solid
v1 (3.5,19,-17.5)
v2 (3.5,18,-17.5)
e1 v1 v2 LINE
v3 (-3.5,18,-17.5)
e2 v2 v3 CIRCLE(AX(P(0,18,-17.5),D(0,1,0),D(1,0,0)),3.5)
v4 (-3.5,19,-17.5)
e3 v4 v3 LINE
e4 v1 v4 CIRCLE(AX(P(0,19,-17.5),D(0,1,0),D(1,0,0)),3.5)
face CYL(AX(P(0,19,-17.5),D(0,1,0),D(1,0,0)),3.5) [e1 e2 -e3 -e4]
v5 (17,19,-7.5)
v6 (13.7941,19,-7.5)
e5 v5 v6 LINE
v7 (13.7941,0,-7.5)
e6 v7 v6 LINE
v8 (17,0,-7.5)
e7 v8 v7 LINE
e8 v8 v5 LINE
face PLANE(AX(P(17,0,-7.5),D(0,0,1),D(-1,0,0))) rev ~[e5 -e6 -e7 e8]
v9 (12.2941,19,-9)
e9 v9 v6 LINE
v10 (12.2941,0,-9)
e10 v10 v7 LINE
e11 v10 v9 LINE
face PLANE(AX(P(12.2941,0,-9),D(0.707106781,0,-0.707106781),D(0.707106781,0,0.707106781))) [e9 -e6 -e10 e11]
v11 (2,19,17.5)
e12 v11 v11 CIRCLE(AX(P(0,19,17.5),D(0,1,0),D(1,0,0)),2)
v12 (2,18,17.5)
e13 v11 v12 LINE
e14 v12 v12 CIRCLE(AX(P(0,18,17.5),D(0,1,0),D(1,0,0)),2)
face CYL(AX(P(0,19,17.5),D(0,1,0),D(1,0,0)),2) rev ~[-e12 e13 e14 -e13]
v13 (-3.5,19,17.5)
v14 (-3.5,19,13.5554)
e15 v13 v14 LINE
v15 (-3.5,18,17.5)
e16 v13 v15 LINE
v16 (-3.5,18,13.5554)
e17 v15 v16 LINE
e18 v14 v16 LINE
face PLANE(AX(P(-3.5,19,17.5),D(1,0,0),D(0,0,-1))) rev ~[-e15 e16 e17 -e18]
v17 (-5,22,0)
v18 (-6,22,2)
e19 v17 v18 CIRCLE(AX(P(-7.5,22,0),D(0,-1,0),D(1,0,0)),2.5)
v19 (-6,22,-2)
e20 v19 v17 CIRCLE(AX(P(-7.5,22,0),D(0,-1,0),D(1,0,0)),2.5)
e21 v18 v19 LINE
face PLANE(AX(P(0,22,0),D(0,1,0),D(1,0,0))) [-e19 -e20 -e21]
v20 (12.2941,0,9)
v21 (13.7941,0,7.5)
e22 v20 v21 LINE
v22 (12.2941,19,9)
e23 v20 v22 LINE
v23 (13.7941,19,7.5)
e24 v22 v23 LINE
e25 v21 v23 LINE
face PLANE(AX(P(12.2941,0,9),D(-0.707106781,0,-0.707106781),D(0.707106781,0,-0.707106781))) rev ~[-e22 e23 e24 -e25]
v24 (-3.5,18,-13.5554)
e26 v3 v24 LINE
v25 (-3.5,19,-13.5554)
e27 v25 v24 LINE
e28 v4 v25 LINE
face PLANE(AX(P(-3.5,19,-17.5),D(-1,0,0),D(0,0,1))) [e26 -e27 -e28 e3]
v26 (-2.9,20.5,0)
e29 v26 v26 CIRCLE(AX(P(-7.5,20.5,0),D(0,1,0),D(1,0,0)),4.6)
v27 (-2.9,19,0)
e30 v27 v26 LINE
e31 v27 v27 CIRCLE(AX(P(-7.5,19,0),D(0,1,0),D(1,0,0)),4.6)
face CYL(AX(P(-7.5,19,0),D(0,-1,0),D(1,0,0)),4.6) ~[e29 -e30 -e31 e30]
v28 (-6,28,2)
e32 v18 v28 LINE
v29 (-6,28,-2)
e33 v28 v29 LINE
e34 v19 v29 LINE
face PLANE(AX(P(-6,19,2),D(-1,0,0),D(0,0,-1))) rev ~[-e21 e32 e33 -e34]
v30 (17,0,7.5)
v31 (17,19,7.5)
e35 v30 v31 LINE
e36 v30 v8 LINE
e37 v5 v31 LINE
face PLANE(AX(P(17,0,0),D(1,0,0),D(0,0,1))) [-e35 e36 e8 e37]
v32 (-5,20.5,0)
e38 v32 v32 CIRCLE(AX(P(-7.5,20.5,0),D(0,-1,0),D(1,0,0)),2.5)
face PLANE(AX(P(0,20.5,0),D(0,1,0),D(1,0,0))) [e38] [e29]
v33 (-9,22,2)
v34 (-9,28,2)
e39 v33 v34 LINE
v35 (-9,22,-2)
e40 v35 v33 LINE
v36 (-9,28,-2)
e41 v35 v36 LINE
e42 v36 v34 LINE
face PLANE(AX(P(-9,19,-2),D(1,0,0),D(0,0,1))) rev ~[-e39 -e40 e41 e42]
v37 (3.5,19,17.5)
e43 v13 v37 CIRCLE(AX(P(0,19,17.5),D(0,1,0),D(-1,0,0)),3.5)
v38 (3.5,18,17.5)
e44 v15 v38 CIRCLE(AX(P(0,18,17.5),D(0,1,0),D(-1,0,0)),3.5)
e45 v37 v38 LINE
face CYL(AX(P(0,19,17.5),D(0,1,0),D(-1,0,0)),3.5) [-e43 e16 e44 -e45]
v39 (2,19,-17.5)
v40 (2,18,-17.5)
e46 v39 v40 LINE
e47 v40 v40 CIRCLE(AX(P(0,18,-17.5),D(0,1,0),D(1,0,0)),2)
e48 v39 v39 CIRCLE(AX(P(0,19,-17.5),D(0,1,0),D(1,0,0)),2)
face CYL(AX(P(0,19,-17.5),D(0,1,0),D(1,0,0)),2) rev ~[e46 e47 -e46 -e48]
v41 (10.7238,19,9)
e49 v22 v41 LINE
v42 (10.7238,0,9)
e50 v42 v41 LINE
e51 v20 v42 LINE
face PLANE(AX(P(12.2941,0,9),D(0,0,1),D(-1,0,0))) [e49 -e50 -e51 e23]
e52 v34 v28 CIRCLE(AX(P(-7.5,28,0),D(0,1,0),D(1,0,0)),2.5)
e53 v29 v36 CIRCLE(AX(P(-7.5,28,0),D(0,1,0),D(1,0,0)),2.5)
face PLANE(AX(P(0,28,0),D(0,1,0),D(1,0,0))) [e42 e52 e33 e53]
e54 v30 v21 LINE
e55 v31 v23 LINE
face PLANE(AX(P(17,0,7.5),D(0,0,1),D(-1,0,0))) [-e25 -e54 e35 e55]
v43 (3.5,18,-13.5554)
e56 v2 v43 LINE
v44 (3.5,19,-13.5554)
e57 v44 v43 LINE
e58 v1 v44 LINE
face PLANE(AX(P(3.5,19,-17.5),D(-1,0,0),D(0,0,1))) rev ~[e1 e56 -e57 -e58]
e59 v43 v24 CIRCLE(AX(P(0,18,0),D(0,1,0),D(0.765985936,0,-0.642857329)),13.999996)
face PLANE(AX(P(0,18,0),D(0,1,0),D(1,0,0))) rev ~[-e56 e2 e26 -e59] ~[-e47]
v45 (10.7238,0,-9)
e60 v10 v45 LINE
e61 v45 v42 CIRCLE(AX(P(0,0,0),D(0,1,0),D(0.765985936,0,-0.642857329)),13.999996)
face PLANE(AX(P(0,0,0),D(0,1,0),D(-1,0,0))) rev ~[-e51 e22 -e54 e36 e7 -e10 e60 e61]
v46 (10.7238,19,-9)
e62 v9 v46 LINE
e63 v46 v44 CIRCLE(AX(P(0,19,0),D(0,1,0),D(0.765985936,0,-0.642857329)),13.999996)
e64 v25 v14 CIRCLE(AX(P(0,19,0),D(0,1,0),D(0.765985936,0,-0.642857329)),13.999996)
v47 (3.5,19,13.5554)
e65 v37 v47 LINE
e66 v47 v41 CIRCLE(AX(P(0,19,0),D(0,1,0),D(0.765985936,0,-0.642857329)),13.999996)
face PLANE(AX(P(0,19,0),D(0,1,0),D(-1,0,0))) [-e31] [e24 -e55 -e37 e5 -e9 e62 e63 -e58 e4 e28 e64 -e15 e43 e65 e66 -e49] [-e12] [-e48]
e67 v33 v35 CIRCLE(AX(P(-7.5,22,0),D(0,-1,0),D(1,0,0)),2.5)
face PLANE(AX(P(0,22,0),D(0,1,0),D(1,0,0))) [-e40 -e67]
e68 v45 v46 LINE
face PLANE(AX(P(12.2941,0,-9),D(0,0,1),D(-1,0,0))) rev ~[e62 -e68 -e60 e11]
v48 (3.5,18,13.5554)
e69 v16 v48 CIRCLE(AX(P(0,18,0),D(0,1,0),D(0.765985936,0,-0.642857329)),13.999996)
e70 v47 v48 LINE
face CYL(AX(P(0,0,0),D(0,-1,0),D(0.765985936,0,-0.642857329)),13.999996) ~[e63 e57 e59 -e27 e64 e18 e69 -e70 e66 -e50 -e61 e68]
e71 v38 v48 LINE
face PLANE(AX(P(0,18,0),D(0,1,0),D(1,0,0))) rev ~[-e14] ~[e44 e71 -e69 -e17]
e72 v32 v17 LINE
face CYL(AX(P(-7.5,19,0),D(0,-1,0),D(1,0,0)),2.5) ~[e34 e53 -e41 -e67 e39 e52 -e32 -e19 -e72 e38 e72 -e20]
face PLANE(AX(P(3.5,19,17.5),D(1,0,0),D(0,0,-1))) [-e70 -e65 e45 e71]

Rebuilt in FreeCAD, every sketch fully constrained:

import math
import FreeCAD as App
import Part
import Sketcher
from FreeCAD import Vector

doc = App.newDocument("Part")
params = doc.addObject("Spreadsheet::Sheet", "Params")
for row, (alias, value) in enumerate([
    ("sketch1_radius", "14 mm"),
    ("sketch1_height", "15 mm"),
    ("pad1_length", "19 mm"),
    ("sketch2_diameter", "4 mm"),
    ("sketch2_radius", "3.5 mm"),
    ("sketch2_radius2", "14 mm"),
    ("pad2_length", "1 mm"),
    ("sketch3_radius", "2.5 mm"),
    ("sketch3_height", "4 mm"),
    ("pad3_length", "9 mm"),
    ("sketch4_diameter", "5 mm"),
    ("pad4_length", "3 mm"),
    ("sketch5_diameter", "5 mm"),
    ("sketch5_diameter2", "9.2 mm"),
    ("pad5_length", "1.5 mm"),
], start=1):
    params.set(f"A{row}", alias)
    params.set(f"B{row}", "=" + value)
    params.setAlias(f"B{row}", alias)

body = doc.addObject("PartDesign::Body", "Body")

# Sketch on XZ plane
sketch1 = body.newObject("Sketcher::SketchObject", "Sketch")
sketch1.AttachmentSupport = (doc.getObject("XZ_Plane"), [""])
sketch1.MapMode = "FlatFace"
sketch1.addGeometry([
    Part.LineSegment(Vector(17, 7.5, 0), Vector(17, -7.5, 0)),  # 0
    Part.LineSegment(Vector(17, -7.5, 0), Vector(13.8, -7.5, 0)),  # 1
    Part.LineSegment(Vector(13.8, -7.5, 0), Vector(12.3, -9, 0)),  # 2
    Part.LineSegment(Vector(12.3, -9, 0), Vector(10.7, -9, 0)),  # 3
    Part.ArcOfCircle(Part.Circle(Vector(0, 0, 0), Vector(0, 0, 1), 14), math.radians(40), math.radians(320)),  # 4
    Part.LineSegment(Vector(10.7, 9, 0), Vector(12.3, 9, 0)),  # 5
    Part.LineSegment(Vector(12.3, 9, 0), Vector(13.8, 7.5, 0)),  # 6
    Part.LineSegment(Vector(13.8, 7.5, 0), Vector(17, 7.5, 0)),  # 7
], False)
sketch1.addConstraint([
    Sketcher.Constraint("Coincident", 0, 2, 1, 1),
    Sketcher.Constraint("Coincident", 1, 2, 2, 1),
    Sketcher.Constraint("Coincident", 2, 2, 3, 1),
    Sketcher.Constraint("Coincident", 3, 2, 4, 2),
    Sketcher.Constraint("Coincident", 4, 1, 5, 1),
    Sketcher.Constraint("Coincident", 5, 2, 6, 1),
    Sketcher.Constraint("Coincident", 6, 2, 7, 1),
    Sketcher.Constraint("Coincident", 7, 2, 0, 1),
    Sketcher.Constraint("Vertical", 0),
    Sketcher.Constraint("Horizontal", 1),
    Sketcher.Constraint("Horizontal", 3),
    Sketcher.Constraint("Horizontal", 5),
    Sketcher.Constraint("Horizontal", 7),
    Sketcher.Constraint("Coincident", 4, 3, -1, 1),
    Sketcher.Constraint("Symmetric", 2, 2, 5, 2, -1),
    Sketcher.Constraint("Symmetric", 1, 2, 6, 2, -1),
    Sketcher.Constraint("Perpendicular", 2, 6),
    Sketcher.Constraint("DistanceY", 2, 2, -1, 1, 9.0),
    Sketcher.Constraint("Radius", 4, 14.0),
    Sketcher.Constraint("DistanceY", 0, 2, 0, 1, 15.0),
    Sketcher.Constraint("DistanceX", -1, 1, 0, 2, 17.0),
    Sketcher.Constraint("DistanceX", 1, 2, 1, 1, 3.206),
])
sketch1.setExpression("Constraints[18]", "Params.sketch1_radius")
sketch1.setExpression("Constraints[19]", "Params.sketch1_height")
pad1 = body.newObject("PartDesign::Pad", "Pad")
pad1.Profile = sketch1
pad1.setExpression("Length", "Params.pad1_length")
pad1.Reversed = True

# Sketch on XZ plane
sketch2 = body.newObject("Sketcher::SketchObject", "Sketch001")
sketch2.AttachmentSupport = (doc.getObject("XZ_Plane"), [""])
sketch2.MapMode = "FlatFace"
sketch2.AttachmentOffset = App.Placement(Vector(0, 0, -19), App.Rotation())
sketch2.addGeometry([
    Part.ArcOfCircle(Part.Circle(Vector(0, 0, 0), Vector(0, 0, 1), 14), math.radians(76), math.radians(104)),  # 0
    Part.LineSegment(Vector(-3.5, 13.6, 0), Vector(-3.5, 17.5, 0)),  # 1
    Part.ArcOfCircle(Part.Circle(Vector(0, 17.5, 0), Vector(0, 0, 1), 3.5), math.radians(0), math.radians(180)),  # 2
    Part.LineSegment(Vector(3.5, 17.5, 0), Vector(3.5, 13.6, 0)),  # 3
    Part.Circle(Vector(0, 17.5, 0), Vector(0, 0, 1), 2),  # 4
    Part.ArcOfCircle(Part.Circle(Vector(0, 0, 0), Vector(0, 0, 1), 14), math.radians(-104), math.radians(-76)),  # 5
    Part.LineSegment(Vector(3.5, -13.6, 0), Vector(3.5, -17.5, 0)),  # 6
    Part.ArcOfCircle(Part.Circle(Vector(0, -17.5, 0), Vector(0, 0, 1), 3.5), math.radians(180), math.radians(360)),  # 7
    Part.LineSegment(Vector(-3.5, -17.5, 0), Vector(-3.5, -13.6, 0)),  # 8
    Part.Circle(Vector(0, -17.5, 0), Vector(0, 0, 1), 2),  # 9
], False)
sketch2.addConstraint([
    Sketcher.Constraint("Coincident", 0, 2, 1, 1),
    Sketcher.Constraint("Tangent", 1, 2, 2, 2),
    Sketcher.Constraint("Tangent", 2, 1, 3, 1),
    Sketcher.Constraint("Coincident", 3, 2, 0, 1),
    Sketcher.Constraint("Coincident", 5, 2, 6, 1),
    Sketcher.Constraint("Tangent", 6, 2, 7, 2),
    Sketcher.Constraint("Tangent", 7, 1, 8, 1),
    Sketcher.Constraint("Coincident", 8, 2, 5, 1),
    Sketcher.Constraint("Vertical", 1),
    Sketcher.Constraint("Vertical", 3),
    Sketcher.Constraint("Vertical", 6),
    Sketcher.Constraint("Vertical", 8),
    Sketcher.Constraint("Coincident", 0, 3, -1, 1),
    Sketcher.Constraint("Coincident", 5, 3, -1, 1),
    Sketcher.Constraint("Coincident", 4, 3, 2, 3),
    Sketcher.Constraint("Coincident", 9, 3, 7, 3),
    Sketcher.Constraint("Equal", 0, 5),
    Sketcher.Constraint("Equal", 2, 7),
    Sketcher.Constraint("Equal", 4, 9),
    Sketcher.Constraint("Symmetric", 2, 3, 7, 3, -1, 1),
    Sketcher.Constraint("PointOnObject", 2, 3, -2),
    Sketcher.Constraint("Diameter", 4, 4.0),
    Sketcher.Constraint("Radius", 2, 3.5),
    Sketcher.Constraint("Radius", 0, 14.0),
    Sketcher.Constraint("DistanceY", -1, 1, 2, 3, 17.5),
])
sketch2.setExpression("Constraints[21]", "Params.sketch2_diameter")
sketch2.setExpression("Constraints[22]", "Params.sketch2_radius")
sketch2.setExpression("Constraints[23]", "Params.sketch2_radius2")
pad2 = body.newObject("PartDesign::Pad", "Pad001")
pad2.Profile = sketch2
pad2.setExpression("Length", "Params.pad2_length")

# Sketch on XZ plane
sketch3 = body.newObject("Sketcher::SketchObject", "Sketch002")
sketch3.AttachmentSupport = (doc.getObject("XZ_Plane"), [""])
sketch3.MapMode = "FlatFace"
sketch3.AttachmentOffset = App.Placement(Vector(0, 0, -19), App.Rotation())
sketch3.addGeometry([
    Part.LineSegment(Vector(-6, 2, 0), Vector(-6, -2, 0)),
    Part.ArcOfCircle(Part.Circle(Vector(-7.5, 0, 0), Vector(0, 0, 1), 2.5), math.radians(-127), math.radians(-53)),
    Part.LineSegment(Vector(-9, -2, 0), Vector(-9, 2, 0)),
    Part.ArcOfCircle(Part.Circle(Vector(-7.5, 0, 0), Vector(0, 0, 1), 2.5), math.radians(53), math.radians(127)),
], False)
sketch3.addConstraint([
    Sketcher.Constraint("Coincident", 0, 2, 1, 2),
    Sketcher.Constraint("Coincident", 1, 1, 2, 1),
    Sketcher.Constraint("Coincident", 2, 2, 3, 2),
    Sketcher.Constraint("Coincident", 3, 1, 0, 1),
    Sketcher.Constraint("Vertical", 0),
    Sketcher.Constraint("Vertical", 2),
    Sketcher.Constraint("Coincident", 3, 3, 1, 3),
    Sketcher.Constraint("Equal", 1, 3),
    Sketcher.Constraint("PointOnObject", 1, 3, -1),
    Sketcher.Constraint("Horizontal", 0, 2, 1, 1),
    Sketcher.Constraint("Radius", 1, 2.5),
    Sketcher.Constraint("DistanceY", 0, 2, 0, 1, 4.0),
    Sketcher.Constraint("DistanceX", 1, 3, -1, 1, 7.5),
])
sketch3.setExpression("Constraints[10]", "Params.sketch3_radius")
sketch3.setExpression("Constraints[11]", "Params.sketch3_height")
pad3 = body.newObject("PartDesign::Pad", "Pad002")
pad3.Profile = sketch3
pad3.setExpression("Length", "Params.pad3_length")
pad3.Reversed = True

# Sketch on XZ plane
sketch4 = body.newObject("Sketcher::SketchObject", "Sketch003")
sketch4.AttachmentSupport = (doc.getObject("XZ_Plane"), [""])
sketch4.MapMode = "FlatFace"
sketch4.AttachmentOffset = App.Placement(Vector(0, 0, -19), App.Rotation())
sketch4.addGeometry(Part.Circle(Vector(-7.5, 0, 0), Vector(0, 0, 1), 2.5), False)
sketch4.addConstraint([
    Sketcher.Constraint("PointOnObject", 0, 3, -1),
    Sketcher.Constraint("Diameter", 0, 5.0),
    Sketcher.Constraint("DistanceX", 0, 3, -1, 1, 7.5),
])
sketch4.setExpression("Constraints[1]", "Params.sketch4_diameter")
pad4 = body.newObject("PartDesign::Pad", "Pad003")
pad4.Profile = sketch4
pad4.setExpression("Length", "Params.pad4_length")
pad4.Reversed = True

# Sketch on XZ plane
sketch5 = body.newObject("Sketcher::SketchObject", "Sketch004")
sketch5.AttachmentSupport = (doc.getObject("XZ_Plane"), [""])
sketch5.MapMode = "FlatFace"
sketch5.AttachmentOffset = App.Placement(Vector(0, 0, -19), App.Rotation())
sketch5.addGeometry([
    Part.Circle(Vector(-7.5, 0, 0), Vector(0, 0, 1), 4.6),
    Part.Circle(Vector(-7.5, 0, 0), Vector(0, 0, 1), 2.5),
], False)
sketch5.addConstraint([
    Sketcher.Constraint("Coincident", 1, 3, 0, 3),
    Sketcher.Constraint("PointOnObject", 0, 3, -1),
    Sketcher.Constraint("Diameter", 1, 5.0),
    Sketcher.Constraint("Diameter", 0, 9.2),
    Sketcher.Constraint("DistanceX", 0, 3, -1, 1, 7.5),
])
sketch5.setExpression("Constraints[2]", "Params.sketch5_diameter")
sketch5.setExpression("Constraints[3]", "Params.sketch5_diameter2")
pad5 = body.newObject("PartDesign::Pad", "Pad004")
pad5.Profile = sketch5
pad5.setExpression("Length", "Params.pad5_length")
pad5.Reversed = True

doc.recompute()
